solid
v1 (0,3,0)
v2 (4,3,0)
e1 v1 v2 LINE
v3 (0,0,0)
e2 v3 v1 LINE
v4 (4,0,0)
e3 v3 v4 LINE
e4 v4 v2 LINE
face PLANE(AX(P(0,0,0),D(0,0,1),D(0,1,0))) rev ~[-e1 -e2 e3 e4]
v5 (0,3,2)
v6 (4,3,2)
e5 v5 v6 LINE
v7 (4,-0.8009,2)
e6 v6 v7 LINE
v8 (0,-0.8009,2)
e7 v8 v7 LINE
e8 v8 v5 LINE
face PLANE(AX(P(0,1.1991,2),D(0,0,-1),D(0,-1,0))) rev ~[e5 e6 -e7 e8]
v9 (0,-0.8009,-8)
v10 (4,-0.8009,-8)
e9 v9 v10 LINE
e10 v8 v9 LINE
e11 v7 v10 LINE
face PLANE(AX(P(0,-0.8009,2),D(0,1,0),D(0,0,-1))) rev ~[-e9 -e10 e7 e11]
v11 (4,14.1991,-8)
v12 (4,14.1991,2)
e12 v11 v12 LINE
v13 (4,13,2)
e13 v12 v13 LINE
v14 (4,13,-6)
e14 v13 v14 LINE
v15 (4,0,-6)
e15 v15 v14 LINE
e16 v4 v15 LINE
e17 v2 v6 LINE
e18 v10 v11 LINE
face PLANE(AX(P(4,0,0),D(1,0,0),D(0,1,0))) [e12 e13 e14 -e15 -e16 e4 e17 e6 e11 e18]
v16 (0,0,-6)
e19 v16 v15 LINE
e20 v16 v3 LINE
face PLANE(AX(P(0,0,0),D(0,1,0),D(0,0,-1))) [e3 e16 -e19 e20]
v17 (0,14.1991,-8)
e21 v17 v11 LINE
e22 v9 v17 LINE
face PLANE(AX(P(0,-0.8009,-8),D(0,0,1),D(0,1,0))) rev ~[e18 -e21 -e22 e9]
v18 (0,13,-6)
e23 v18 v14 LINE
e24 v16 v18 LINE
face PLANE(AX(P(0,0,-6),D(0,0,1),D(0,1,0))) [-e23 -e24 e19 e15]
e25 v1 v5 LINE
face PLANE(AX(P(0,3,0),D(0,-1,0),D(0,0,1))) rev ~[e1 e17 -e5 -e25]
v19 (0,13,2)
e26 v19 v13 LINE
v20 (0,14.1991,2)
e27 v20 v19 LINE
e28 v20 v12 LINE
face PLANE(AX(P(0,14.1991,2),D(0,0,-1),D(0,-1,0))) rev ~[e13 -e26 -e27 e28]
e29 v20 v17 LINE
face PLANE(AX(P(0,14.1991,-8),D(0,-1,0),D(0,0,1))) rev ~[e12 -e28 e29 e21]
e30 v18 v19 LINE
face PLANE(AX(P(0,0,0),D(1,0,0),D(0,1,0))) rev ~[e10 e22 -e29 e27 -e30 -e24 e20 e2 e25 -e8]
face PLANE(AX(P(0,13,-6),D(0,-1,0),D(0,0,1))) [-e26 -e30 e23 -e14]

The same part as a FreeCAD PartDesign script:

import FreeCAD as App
import Part
import Sketcher
Q = App.Units.Quantity

doc = App.newDocument("Part")
body = doc.addObject("PartDesign::Body", "Body")

# Sketch on YZ plane
sketch1 = doc.addObject("Sketcher::SketchObject", "Sketch")
body.addObject(sketch1)
sketch1.AttachmentSupport = (doc.YZ_Plane, [""])
sketch1.MapMode = "FlatFace"
sketch1.addGeometry(Part.LineSegment(App.Vector(0, 0, 0), App.Vector(3, 0, 0)), False)
sketch1.addGeometry(Part.LineSegment(App.Vector(3, 0, 0), App.Vector(3, 2, 0)), False)
sketch1.addGeometry(Part.LineSegment(App.Vector(3, 2, 0), App.Vector(-0.8009, 2, 0)), False)
sketch1.addGeometry(Part.LineSegment(App.Vector(-0.8009, 2, 0), App.Vector(-0.8009, -8, 0)), False)
sketch1.addGeometry(Part.LineSegment(App.Vector(-0.8009, -8, 0), App.Vector(14.1991, -8, 0)), False)
sketch1.addGeometry(Part.LineSegment(App.Vector(14.1991, -8, 0), App.Vector(14.1991, 2, 0)), False)
sketch1.addGeometry(Part.LineSegment(App.Vector(14.1991, 2, 0), App.Vector(13, 2, 0)), False)
sketch1.addGeometry(Part.LineSegment(App.Vector(13, 2, 0), App.Vector(13, -6, 0)), False)
sketch1.addGeometry(Part.LineSegment(App.Vector(13, -6, 0), App.Vector(0, -6, 0)), False)
sketch1.addGeometry(Part.LineSegment(App.Vector(0, -6, 0), App.Vector(0, 0, 0)), False)
sketch1.addConstraint(Sketcher.Constraint("Coincident", 0, 2, 1, 1))
sketch1.addConstraint(Sketcher.Constraint("Coincident", 1, 2, 2, 1))
sketch1.addConstraint(Sketcher.Constraint("Coincident", 2, 2, 3, 1))
sketch1.addConstraint(Sketcher.Constraint("Coincident", 3, 2, 4, 1))
sketch1.addConstraint(Sketcher.Constraint("Coincident", 4, 2, 5, 1))
sketch1.addConstraint(Sketcher.Constraint("Coincident", 5, 2, 6, 1))
sketch1.addConstraint(Sketcher.Constraint("Coincident", 6, 2, 7, 1))
sketch1.addConstraint(Sketcher.Constraint("Coincident", 7, 2, 8, 1))
sketch1.addConstraint(Sketcher.Constraint("Coincident", 8, 2, 9, 1))
sketch1.addConstraint(Sketcher.Constraint("Coincident", 9, 2, 0, 1))
sketch1.addConstraint(Sketcher.Constraint("Horizontal", 0))
sketch1.addConstraint(Sketcher.Constraint("Vertical", 1))
sketch1.addConstraint(Sketcher.Constraint("Horizontal", 2))
sketch1.addConstraint(Sketcher.Constraint("Vertical", 3))
sketch1.addConstraint(Sketcher.Constraint("Horizontal", 4))
sketch1.addConstraint(Sketcher.Constraint("Vertical", 5))
sketch1.addConstraint(Sketcher.Constraint("Horizontal", 6))
sketch1.addConstraint(Sketcher.Constraint("Vertical", 7))
sketch1.addConstraint(Sketcher.Constraint("Horizontal", 8))
sketch1.addConstraint(Sketcher.Constraint("Vertical", 9))
sketch1.addConstraint(Sketcher.Constraint("Coincident", 9, 2, -1, 1))
sketch1.addConstraint(Sketcher.Constraint("Horizontal", 2, 2, 5, 2))
sketch1.addConstraint(Sketcher.Constraint("DistanceX", 4, 1, 4, 2, Q("15 mm")))
sketch1.addConstraint(Sketcher.Constraint("DistanceX", 8, 2, 8, 1, Q("13 mm")))
sketch1.addConstraint(Sketcher.Constraint("DistanceY", 1, 1, 1, 2, Q("2 mm")))
sketch1.addConstraint(Sketcher.Constraint("DistanceY", 3, 2, 3, 1, Q("10 mm")))
sketch1.addConstraint(Sketcher.Constraint("DistanceY", 9, 1, 9, 2, Q("6 mm")))
sketch1.addConstraint(Sketcher.Constraint("DistanceX", 1, 2, 6, 2, Q("10 mm")))
sketch1.addConstraint(Sketcher.Constraint("DistanceX", 2, 2, 2, 1, Q("3.801 mm")))
pad1 = doc.addObject("PartDesign::Pad", "Pad")
body.addObject(pad1)
pad1.Profile = sketch1
pad1.Length = 4

doc.recompute()
